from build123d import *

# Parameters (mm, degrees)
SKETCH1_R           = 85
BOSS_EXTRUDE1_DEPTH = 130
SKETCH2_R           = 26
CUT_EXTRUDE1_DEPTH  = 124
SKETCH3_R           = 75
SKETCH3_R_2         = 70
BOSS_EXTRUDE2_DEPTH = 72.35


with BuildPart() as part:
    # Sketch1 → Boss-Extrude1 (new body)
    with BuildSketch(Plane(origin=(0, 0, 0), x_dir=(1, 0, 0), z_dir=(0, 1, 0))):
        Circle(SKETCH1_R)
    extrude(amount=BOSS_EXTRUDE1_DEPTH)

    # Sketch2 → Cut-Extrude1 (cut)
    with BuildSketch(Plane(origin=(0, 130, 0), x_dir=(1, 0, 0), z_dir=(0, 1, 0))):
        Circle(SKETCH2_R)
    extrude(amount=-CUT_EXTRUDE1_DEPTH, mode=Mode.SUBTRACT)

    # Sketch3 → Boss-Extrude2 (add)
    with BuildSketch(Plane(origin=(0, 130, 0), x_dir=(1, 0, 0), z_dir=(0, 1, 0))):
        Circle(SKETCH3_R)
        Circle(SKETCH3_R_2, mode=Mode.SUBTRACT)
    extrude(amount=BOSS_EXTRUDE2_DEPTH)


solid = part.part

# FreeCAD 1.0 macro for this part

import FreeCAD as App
import Part
import Sketcher
Q = App.Units.Quantity

doc = App.newDocument("Part")
body = doc.addObject("PartDesign::Body", "Body")

# Sketch on XZ plane
sketch1 = doc.addObject("Sketcher::SketchObject", "Sketch")
body.addObject(sketch1)
sketch1.AttachmentSupport = (doc.XZ_Plane, [""])
sketch1.MapMode = "FlatFace"
sketch1.addGeometry(Part.Circle(App.Vector(0, 0, 0), App.Vector(0, 0, 1), 85), False)
sketch1.addConstraint(Sketcher.Constraint("Coincident", 0, 3, -1, 1))
sketch1.addConstraint(Sketcher.Constraint("Diameter", 0, Q("170 mm")))
pad1 = doc.addObject("PartDesign::Pad", "Pad")
body.addObject(pad1)
pad1.Profile = sketch1
pad1.Length = 130
pad1.Reversed = True

# Sketch on XZ plane
sketch2 = doc.addObject("Sketcher::SketchObject", "Sketch001")
body.addObject(sketch2)
sketch2.AttachmentSupport = (doc.XZ_Plane, [""])
sketch2.MapMode = "FlatFace"
sketch2.AttachmentOffset = App.Placement(App.Vector(0, 0, -130), App.Rotation())
sketch2.addGeometry(Part.Circle(App.Vector(0, 0, 0), App.Vector(0, 0, 1), 26), False)
sketch2.addConstraint(Sketcher.Constraint("Coincident", 0, 3, -1, 1))
sketch2.addConstraint(Sketcher.Constraint("Diameter", 0, Q("52 mm")))
pocket1 = doc.addObject("PartDesign::Pocket", "Pocket")
body.addObject(pocket1)
pocket1.Profile = sketch2
pocket1.Length = 124
pocket1.Reversed = True

# Sketch on XZ plane
sketch3 = doc.addObject("Sketcher::SketchObject", "Sketch002")
body.addObject(sketch3)
sketch3.AttachmentSupport = (doc.XZ_Plane, [""])
sketch3.MapMode = "FlatFace"
sketch3.AttachmentOffset = App.Placement(App.Vector(0, 0, -130), App.Rotation())
sketch3.addGeometry(Part.Circle(App.Vector(0, 0, 0), App.Vector(0, 0, 1), 75), False)
sketch3.addGeometry(Part.Circle(App.Vector(0, 0, 0), App.Vector(0, 0, 1), 70), False)
sketch3.addConstraint(Sketcher.Constraint("Coincident", 0, 3, -1, 1))
sketch3.addConstraint(Sketcher.Constraint("Coincident", 1, 3, -1, 1))
sketch3.addConstraint(Sketcher.Constraint("Diameter", 0, Q("150 mm")))
sketch3.addConstraint(Sketcher.Constraint("Diameter", 1, Q("140 mm")))
pad2 = doc.addObject("PartDesign::Pad", "Pad001")
body.addObject(pad2)
pad2.Profile = sketch3
pad2.Length = 72.35
pad2.Reversed = True

doc.recompute()
